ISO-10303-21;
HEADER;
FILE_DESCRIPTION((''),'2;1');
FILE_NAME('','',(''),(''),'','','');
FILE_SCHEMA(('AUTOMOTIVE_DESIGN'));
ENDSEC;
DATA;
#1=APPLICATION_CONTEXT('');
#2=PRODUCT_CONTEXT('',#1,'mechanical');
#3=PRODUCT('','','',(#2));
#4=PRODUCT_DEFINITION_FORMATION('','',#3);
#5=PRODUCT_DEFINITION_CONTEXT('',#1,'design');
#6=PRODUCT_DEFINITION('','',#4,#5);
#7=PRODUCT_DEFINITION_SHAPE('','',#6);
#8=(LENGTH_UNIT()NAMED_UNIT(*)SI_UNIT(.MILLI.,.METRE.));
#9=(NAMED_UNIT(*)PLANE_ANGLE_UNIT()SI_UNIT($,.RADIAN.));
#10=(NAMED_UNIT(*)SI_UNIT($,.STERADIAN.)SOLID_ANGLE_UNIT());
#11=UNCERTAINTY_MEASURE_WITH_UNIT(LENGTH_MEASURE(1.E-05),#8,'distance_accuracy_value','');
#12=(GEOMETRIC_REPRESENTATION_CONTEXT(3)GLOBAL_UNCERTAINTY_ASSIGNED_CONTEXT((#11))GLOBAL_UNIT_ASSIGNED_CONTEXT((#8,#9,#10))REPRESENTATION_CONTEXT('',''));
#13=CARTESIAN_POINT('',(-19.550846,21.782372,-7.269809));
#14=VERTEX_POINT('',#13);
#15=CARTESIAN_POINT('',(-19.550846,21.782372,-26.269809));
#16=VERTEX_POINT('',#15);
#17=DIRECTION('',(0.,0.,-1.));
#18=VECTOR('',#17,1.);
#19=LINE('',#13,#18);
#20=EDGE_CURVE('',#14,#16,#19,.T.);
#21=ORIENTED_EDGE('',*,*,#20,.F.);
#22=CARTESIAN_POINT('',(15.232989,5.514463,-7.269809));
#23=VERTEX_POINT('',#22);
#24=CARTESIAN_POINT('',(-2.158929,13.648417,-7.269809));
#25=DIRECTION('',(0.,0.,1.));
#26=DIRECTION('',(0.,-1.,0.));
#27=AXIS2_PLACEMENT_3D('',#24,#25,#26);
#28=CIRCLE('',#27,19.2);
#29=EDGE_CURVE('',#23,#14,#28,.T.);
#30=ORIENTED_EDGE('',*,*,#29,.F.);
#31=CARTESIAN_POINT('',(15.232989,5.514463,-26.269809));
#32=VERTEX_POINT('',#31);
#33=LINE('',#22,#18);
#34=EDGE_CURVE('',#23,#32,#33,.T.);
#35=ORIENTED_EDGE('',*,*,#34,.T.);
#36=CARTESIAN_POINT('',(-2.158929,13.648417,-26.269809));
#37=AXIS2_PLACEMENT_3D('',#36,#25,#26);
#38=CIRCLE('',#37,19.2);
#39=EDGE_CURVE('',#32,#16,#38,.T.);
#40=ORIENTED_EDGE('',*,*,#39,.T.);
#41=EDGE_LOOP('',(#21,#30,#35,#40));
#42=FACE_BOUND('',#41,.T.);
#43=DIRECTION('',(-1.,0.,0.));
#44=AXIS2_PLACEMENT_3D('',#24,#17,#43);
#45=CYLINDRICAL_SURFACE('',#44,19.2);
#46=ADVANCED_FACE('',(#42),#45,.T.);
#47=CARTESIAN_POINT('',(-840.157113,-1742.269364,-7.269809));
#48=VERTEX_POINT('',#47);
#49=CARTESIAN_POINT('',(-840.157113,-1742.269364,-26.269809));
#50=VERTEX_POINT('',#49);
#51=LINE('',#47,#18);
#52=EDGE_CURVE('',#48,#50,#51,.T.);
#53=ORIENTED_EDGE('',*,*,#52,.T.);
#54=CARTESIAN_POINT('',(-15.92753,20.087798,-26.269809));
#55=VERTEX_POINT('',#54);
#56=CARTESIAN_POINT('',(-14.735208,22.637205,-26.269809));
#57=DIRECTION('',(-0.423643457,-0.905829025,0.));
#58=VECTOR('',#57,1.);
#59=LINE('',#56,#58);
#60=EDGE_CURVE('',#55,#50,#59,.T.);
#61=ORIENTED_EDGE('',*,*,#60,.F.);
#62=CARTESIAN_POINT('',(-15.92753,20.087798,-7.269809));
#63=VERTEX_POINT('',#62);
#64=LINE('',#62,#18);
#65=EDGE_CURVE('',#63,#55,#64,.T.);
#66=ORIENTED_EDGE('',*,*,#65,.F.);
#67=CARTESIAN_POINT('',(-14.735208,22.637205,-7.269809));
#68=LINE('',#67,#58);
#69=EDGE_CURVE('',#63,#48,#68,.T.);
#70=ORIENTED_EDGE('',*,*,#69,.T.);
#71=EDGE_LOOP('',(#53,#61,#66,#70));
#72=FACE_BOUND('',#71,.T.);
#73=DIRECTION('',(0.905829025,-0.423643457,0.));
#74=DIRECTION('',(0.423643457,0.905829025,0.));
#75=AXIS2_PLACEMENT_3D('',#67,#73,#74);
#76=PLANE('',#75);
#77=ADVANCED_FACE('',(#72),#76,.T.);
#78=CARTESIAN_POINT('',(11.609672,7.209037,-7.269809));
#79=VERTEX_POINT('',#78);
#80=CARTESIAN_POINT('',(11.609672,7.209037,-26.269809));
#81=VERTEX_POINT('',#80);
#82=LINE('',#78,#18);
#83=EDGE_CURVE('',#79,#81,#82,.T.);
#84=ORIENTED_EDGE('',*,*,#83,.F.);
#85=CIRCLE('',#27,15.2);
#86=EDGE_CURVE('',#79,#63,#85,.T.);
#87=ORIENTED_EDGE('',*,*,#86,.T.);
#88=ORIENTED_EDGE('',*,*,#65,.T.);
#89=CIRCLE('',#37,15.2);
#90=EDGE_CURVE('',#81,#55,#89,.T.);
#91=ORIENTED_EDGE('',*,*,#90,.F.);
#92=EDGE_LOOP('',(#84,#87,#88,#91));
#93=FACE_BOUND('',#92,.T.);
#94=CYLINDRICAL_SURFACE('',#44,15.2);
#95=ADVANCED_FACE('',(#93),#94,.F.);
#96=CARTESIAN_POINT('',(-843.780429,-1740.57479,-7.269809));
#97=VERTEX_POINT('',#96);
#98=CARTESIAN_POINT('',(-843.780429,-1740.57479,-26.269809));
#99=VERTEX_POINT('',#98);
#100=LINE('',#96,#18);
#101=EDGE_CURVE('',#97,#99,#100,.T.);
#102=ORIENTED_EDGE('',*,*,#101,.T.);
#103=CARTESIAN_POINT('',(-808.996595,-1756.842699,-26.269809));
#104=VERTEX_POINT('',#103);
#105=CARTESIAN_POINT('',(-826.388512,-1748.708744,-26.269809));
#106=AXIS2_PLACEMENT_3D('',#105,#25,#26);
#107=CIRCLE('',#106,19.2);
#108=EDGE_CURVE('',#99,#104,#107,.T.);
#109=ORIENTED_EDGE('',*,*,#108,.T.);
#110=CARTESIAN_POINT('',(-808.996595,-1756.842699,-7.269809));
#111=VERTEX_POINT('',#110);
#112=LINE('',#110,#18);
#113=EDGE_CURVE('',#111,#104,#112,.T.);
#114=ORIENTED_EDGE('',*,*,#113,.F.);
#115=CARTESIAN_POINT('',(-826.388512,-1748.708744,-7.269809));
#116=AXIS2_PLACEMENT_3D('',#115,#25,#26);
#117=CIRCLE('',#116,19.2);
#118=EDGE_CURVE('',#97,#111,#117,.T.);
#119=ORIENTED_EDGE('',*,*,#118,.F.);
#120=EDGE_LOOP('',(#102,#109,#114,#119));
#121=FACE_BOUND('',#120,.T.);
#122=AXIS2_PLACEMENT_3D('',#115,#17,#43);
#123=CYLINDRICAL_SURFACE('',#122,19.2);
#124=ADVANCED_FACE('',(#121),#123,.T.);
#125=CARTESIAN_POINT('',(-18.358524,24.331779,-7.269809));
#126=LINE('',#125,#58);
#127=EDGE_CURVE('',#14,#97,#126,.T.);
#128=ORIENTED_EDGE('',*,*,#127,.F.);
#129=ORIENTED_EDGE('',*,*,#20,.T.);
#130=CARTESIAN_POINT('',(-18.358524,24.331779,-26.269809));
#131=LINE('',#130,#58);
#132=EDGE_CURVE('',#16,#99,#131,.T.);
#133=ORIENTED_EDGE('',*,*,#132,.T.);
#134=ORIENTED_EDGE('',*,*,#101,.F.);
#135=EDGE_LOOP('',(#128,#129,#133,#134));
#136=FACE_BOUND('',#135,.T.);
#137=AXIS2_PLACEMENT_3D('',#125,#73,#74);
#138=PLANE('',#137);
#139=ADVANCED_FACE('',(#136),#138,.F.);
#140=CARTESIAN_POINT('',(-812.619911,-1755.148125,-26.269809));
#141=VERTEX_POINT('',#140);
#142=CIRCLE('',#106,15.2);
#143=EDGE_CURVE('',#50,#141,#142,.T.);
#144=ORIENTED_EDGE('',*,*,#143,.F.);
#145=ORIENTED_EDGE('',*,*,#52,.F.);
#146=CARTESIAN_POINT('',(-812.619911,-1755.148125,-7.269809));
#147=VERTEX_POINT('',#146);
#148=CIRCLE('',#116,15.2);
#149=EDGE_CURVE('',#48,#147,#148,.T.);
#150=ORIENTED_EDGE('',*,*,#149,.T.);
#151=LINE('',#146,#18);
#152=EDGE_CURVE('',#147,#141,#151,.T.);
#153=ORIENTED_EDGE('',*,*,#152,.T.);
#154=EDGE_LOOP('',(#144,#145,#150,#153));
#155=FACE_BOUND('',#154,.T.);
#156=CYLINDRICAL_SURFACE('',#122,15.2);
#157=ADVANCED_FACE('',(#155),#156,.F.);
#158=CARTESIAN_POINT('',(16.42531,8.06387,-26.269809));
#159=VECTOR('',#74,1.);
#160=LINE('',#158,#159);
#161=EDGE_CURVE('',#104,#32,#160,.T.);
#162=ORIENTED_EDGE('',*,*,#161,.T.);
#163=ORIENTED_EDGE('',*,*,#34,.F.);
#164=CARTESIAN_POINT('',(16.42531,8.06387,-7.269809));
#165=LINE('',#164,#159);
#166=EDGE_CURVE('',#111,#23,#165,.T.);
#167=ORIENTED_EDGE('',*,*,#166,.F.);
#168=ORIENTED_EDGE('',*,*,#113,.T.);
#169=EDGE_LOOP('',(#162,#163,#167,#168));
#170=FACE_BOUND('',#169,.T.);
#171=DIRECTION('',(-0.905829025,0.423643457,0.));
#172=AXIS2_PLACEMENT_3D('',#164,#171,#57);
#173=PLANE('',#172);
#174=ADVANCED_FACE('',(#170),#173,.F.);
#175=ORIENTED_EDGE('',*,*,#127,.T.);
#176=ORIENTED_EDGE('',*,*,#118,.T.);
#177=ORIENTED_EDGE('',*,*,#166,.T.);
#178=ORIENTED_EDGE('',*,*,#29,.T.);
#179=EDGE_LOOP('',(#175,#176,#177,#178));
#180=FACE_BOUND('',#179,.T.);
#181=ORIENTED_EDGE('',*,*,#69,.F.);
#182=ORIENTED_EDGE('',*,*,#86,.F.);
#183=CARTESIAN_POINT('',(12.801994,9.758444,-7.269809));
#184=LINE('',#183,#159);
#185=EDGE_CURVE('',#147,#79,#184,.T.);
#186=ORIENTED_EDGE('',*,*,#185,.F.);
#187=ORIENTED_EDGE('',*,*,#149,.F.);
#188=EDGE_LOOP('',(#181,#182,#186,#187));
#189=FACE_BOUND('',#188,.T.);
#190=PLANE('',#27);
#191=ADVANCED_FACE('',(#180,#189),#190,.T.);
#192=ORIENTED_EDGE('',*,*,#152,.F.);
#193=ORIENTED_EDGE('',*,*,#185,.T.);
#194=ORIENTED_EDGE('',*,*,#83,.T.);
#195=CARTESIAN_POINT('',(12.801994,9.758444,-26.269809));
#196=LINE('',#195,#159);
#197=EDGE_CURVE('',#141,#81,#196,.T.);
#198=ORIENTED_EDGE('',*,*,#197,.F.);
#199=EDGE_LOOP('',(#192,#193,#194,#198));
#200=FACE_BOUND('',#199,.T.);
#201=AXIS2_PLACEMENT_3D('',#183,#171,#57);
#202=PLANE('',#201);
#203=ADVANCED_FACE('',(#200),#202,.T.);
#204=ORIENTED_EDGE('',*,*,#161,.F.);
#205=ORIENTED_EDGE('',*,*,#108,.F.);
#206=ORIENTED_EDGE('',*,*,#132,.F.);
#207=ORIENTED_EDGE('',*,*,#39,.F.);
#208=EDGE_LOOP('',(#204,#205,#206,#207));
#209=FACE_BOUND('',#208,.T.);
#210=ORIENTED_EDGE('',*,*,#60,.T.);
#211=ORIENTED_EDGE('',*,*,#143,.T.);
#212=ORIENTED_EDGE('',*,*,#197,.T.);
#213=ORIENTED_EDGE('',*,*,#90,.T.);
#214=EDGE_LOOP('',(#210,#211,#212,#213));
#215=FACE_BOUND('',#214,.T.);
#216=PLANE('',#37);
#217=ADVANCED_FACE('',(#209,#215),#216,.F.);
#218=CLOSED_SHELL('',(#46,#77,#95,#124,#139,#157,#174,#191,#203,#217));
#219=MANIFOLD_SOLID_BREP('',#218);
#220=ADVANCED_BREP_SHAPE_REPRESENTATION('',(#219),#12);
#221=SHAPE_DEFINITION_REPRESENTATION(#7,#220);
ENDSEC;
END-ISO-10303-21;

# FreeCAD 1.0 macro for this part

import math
import FreeCAD as App
import Part
import Sketcher
Q = App.Units.Quantity

doc = App.newDocument("Part")
body = doc.addObject("PartDesign::Body", "Body")

# Sketch on XY plane
sketch1 = body.newObject("Sketcher::SketchObject", "Sketch")
sketch1.AttachmentSupport = (doc.getObject("XY_Plane"), [""])
sketch1.MapMode = "FlatFace"
sketch1.AttachmentOffset = App.Placement(App.Vector(0, 0, -26.269809), App.Rotation())
sketch1.addGeometry(Part.LineSegment(App.Vector(-20, 22, 0), App.Vector(-844, -1741, 0)), False)
sketch1.addGeometry(Part.ArcOfCircle(Part.Circle(App.Vector(-826, -1749, 0), App.Vector(0, 0, 1), 19), math.radians(155), math.radians(335)), False)
sketch1.addGeometry(Part.LineSegment(App.Vector(-809, -1757, 0), App.Vector(15, 6, 0)), False)
sketch1.addGeometry(Part.ArcOfCircle(Part.Circle(App.Vector(-2, 14, 0), App.Vector(0, 0, 1), 19), math.radians(-25), math.radians(155)), False)
sketch1.addGeometry(Part.LineSegment(App.Vector(-840, -1742, 0), App.Vector(-16, 20, 0)), False)
sketch1.addGeometry(Part.ArcOfCircle(Part.Circle(App.Vector(-2, 14, 0), App.Vector(0, 0, 1), 15), math.radians(-25), math.radians(155)), False)
sketch1.addGeometry(Part.LineSegment(App.Vector(12, 7, 0), App.Vector(-813, -1755, 0)), False)
sketch1.addGeometry(Part.ArcOfCircle(Part.Circle(App.Vector(-826, -1749, 0), App.Vector(0, 0, 1), 15), math.radians(155), math.radians(335)), False)
sketch1.addConstraint(Sketcher.Constraint("Tangent", 0, 2, 1, 1))
sketch1.addConstraint(Sketcher.Constraint("Tangent", 1, 2, 2, 1))
sketch1.addConstraint(Sketcher.Constraint("Tangent", 2, 2, 3, 1))
sketch1.addConstraint(Sketcher.Constraint("Tangent", 3, 2, 0, 1))
sketch1.addConstraint(Sketcher.Constraint("Tangent", 4, 2, 5, 2))
sketch1.addConstraint(Sketcher.Constraint("Tangent", 5, 1, 6, 1))
sketch1.addConstraint(Sketcher.Constraint("Tangent", 6, 2, 7, 2))
sketch1.addConstraint(Sketcher.Constraint("Tangent", 7, 1, 4, 1))
sketch1.addConstraint(Sketcher.Constraint("Coincident", 5, 3, 3, 3))
sketch1.addConstraint(Sketcher.Constraint("Coincident", 7, 3, 1, 3))
sketch1.addConstraint(Sketcher.Constraint("Equal", 1, 3))
sketch1.addConstraint(Sketcher.Constraint("Equal", 5, 7))
sketch1.addConstraint(Sketcher.Constraint("Radius", 1, Q("19.2 mm")))
sketch1.addConstraint(Sketcher.Constraint("Radius", 5, Q("15.2 mm")))
sketch1.addConstraint(Sketcher.Constraint("DistanceY", 1, 2, -1, 1, Q("1756.842699 mm")))
sketch1.addConstraint(Sketcher.Constraint("DistanceX", 0, 2, 3, 3, Q("841.621501 mm")))
sketch1.addConstraint(Sketcher.Constraint("Distance", 0, Q("1945.573738 mm")))
sketch1.addConstraint(Sketcher.Constraint("DistanceX", 3, 3, -1, 1, Q("2.158929 mm")))
pad1 = body.newObject("PartDesign::Pad", "Pad")
pad1.Profile = sketch1
pad1.Length = 19

doc.recompute()
